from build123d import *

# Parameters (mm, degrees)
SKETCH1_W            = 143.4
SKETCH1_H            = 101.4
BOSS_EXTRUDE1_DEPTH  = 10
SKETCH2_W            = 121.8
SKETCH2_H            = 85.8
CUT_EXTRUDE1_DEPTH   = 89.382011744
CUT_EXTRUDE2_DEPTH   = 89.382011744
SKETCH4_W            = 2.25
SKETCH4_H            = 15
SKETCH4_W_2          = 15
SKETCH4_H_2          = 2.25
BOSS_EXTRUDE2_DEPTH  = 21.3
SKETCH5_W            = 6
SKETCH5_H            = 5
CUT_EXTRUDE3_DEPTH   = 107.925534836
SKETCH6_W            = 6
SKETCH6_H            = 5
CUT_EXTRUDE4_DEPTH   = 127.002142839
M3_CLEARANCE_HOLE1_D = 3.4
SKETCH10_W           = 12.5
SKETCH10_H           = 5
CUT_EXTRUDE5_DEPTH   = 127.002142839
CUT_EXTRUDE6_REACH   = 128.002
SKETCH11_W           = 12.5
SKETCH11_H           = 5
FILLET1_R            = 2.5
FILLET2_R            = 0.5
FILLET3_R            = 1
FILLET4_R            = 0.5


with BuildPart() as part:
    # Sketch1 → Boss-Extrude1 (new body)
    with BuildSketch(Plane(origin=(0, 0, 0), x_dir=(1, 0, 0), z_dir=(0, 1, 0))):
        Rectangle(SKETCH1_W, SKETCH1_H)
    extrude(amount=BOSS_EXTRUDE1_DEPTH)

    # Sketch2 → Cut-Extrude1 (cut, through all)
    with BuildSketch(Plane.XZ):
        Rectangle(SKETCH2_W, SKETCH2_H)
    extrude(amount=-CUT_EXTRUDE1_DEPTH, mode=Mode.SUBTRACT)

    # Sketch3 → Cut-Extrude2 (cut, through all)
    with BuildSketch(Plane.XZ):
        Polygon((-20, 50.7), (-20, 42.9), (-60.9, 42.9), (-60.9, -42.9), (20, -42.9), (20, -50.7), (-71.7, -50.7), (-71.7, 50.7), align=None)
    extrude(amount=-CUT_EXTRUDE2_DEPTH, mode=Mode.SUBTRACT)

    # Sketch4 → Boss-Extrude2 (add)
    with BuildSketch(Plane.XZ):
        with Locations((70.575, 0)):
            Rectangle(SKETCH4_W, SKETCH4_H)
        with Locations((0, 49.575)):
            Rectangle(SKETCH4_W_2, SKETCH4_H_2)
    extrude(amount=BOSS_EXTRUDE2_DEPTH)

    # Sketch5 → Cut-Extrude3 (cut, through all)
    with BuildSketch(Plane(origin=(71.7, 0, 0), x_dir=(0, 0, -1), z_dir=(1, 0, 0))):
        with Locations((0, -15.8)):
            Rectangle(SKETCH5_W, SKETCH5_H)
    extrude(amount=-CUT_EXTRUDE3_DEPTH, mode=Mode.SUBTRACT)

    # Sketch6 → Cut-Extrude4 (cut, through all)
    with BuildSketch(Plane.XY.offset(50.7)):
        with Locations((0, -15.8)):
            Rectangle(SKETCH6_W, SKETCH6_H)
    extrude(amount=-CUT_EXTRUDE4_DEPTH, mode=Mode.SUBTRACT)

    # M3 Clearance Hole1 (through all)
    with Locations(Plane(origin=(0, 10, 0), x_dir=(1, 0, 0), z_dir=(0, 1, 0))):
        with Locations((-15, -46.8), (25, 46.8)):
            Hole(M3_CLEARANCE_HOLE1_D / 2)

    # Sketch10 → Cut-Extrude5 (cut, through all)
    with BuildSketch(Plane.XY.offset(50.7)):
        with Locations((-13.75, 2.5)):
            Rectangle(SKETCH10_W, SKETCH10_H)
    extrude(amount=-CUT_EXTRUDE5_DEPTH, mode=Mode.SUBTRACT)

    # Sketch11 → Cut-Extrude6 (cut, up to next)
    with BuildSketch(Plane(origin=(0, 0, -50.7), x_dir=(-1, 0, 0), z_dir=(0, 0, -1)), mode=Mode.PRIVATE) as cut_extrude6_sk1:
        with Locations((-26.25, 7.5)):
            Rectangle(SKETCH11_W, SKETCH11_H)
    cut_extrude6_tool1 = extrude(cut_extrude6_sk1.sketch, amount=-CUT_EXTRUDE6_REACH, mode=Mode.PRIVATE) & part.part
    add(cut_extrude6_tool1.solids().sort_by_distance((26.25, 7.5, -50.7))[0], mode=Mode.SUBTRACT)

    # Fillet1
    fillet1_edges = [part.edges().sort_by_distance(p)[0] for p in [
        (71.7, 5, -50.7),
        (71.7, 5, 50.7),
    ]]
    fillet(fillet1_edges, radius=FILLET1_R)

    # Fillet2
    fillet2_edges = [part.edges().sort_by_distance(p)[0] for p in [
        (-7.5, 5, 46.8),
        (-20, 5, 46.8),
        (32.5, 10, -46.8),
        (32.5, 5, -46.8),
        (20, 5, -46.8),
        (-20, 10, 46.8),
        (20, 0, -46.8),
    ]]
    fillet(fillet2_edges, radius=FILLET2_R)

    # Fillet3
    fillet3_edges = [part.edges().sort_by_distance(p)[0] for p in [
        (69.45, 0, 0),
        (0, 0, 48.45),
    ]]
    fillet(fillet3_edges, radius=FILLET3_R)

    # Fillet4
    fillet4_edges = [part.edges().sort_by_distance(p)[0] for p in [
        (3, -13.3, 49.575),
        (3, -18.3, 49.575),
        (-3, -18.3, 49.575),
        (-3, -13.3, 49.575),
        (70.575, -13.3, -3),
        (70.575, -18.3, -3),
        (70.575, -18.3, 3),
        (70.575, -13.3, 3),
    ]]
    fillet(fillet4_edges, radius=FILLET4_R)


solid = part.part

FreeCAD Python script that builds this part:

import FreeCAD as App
import Part
import Sketcher
from FreeCAD import Vector
Q = App.Units.Quantity


def edges_at(feature, points):
    """Names of the edges that pass closest to the given points."""
    edges = feature.Shape.Edges
    near = lambda p: min(range(len(edges)), key=lambda i: edges[i].distToShape(Part.Vertex(*p))[0])
    return sorted({f"Edge{near(p) + 1}" for p in points})

doc = App.newDocument("Part")
body = doc.addObject("PartDesign::Body", "Body")

sketch1 = doc.addObject("Sketcher::SketchObject", "Sketch")
body.addObject(sketch1)
sketch1.AttachmentSupport = (doc.XZ_Plane, [""])
sketch1.MapMode = "FlatFace"
sketch1.addGeometry([
    Part.LineSegment(Vector(-72, -51, 0), Vector(-72, 51, 0)),
    Part.LineSegment(Vector(-72, 51, 0), Vector(72, 51, 0)),
    Part.LineSegment(Vector(72, 51, 0), Vector(72, -51, 0)),
    Part.LineSegment(Vector(72, -51, 0), Vector(-72, -51, 0)),
], False)
sketch1.addConstraint([
    Sketcher.Constraint("Coincident", 0, 2, 1, 1),
    Sketcher.Constraint("Coincident", 1, 2, 2, 1),
    Sketcher.Constraint("Coincident", 2, 2, 3, 1),
    Sketcher.Constraint("Coincident", 3, 2, 0, 1),
    Sketcher.Constraint("Vertical", 0),
    Sketcher.Constraint("Horizontal", 1),
    Sketcher.Constraint("Vertical", 2),
    Sketcher.Constraint("Horizontal", 3),
    Sketcher.Constraint("Symmetric", 0, 2, 2, 2, -1, 1),
    Sketcher.Constraint("DistanceX", 1, 1, 1, 2, Q("143.4 mm")),
    Sketcher.Constraint("DistanceY", 0, 1, 0, 2, Q("101.4 mm")),
])
pad1 = doc.addObject("PartDesign::Pad", "Pad")
body.addObject(pad1)
pad1.Profile = sketch1
pad1.Length = 10
pad1.Reversed = True

sketch2 = doc.addObject("Sketcher::SketchObject", "Sketch001")
body.addObject(sketch2)
sketch2.AttachmentSupport = (doc.XZ_Plane, [""])
sketch2.MapMode = "FlatFace"
sketch2.addGeometry([
    Part.LineSegment(Vector(-61, 43, 0), Vector(-61, -43, 0)),
    Part.LineSegment(Vector(-61, -43, 0), Vector(61, -43, 0)),
    Part.LineSegment(Vector(61, -43, 0), Vector(61, 43, 0)),
    Part.LineSegment(Vector(61, 43, 0), Vector(-61, 43, 0)),
], False)
sketch2.addConstraint([
    Sketcher.Constraint("Coincident", 0, 2, 1, 1),
    Sketcher.Constraint("Coincident", 1, 2, 2, 1),
    Sketcher.Constraint("Coincident", 2, 2, 3, 1),
    Sketcher.Constraint("Coincident", 3, 2, 0, 1),
    Sketcher.Constraint("Vertical", 0),
    Sketcher.Constraint("Horizontal", 1),
    Sketcher.Constraint("Vertical", 2),
    Sketcher.Constraint("Horizontal", 3),
    Sketcher.Constraint("Symmetric", 0, 2, 2, 2, -1, 1),
    Sketcher.Constraint("DistanceX", 1, 1, 1, 2, Q("121.8 mm")),
    Sketcher.Constraint("DistanceY", 0, 2, 0, 1, Q("85.8 mm")),
])
pocket1 = doc.addObject("PartDesign::Pocket", "Pocket")
body.addObject(pocket1)
pocket1.Profile = sketch2
pocket1.Type = "ThroughAll"

sketch3 = doc.addObject("Sketcher::SketchObject", "Sketch002")
body.addObject(sketch3)
sketch3.AttachmentSupport = (doc.XZ_Plane, [""])
sketch3.MapMode = "FlatFace"
sketch3.addGeometry([
    Part.LineSegment(Vector(-20, 43, 0), Vector(-20, 51, 0)),
    Part.LineSegment(Vector(-20, 51, 0), Vector(-72, 51, 0)),
    Part.LineSegment(Vector(-72, 51, 0), Vector(-72, -51, 0)),
    Part.LineSegment(Vector(-72, -51, 0), Vector(20, -51, 0)),
    Part.LineSegment(Vector(20, -51, 0), Vector(20, -43, 0)),
    Part.LineSegment(Vector(20, -43, 0), Vector(-61, -43, 0)),
    Part.LineSegment(Vector(-61, -43, 0), Vector(-61, 43, 0)),
    Part.LineSegment(Vector(-61, 43, 0), Vector(-20, 43, 0)),
], False)
sketch3.addConstraint([
    Sketcher.Constraint("Coincident", 0, 2, 1, 1),
    Sketcher.Constraint("Coincident", 1, 2, 2, 1),
    Sketcher.Constraint("Coincident", 2, 2, 3, 1),
    Sketcher.Constraint("Coincident", 3, 2, 4, 1),
    Sketcher.Constraint("Coincident", 4, 2, 5, 1),
    Sketcher.Constraint("Coincident", 5, 2, 6, 1),
    Sketcher.Constraint("Coincident", 6, 2, 7, 1),
    Sketcher.Constraint("Coincident", 7, 2, 0, 1),
    Sketcher.Constraint("Vertical", 0),
    Sketcher.Constraint("Horizontal", 1),
    Sketcher.Constraint("Vertical", 2),
    Sketcher.Constraint("Horizontal", 3),
    Sketcher.Constraint("Vertical", 4),
    Sketcher.Constraint("Horizontal", 5),
    Sketcher.Constraint("Vertical", 6),
    Sketcher.Constraint("Horizontal", 7),
    Sketcher.Constraint("Symmetric", 0, 2, 3, 2, -1, 1),
    Sketcher.Constraint("Equal", 0, 4),
    Sketcher.Constraint("DistanceX", 1, 2, 1, 1, Q("51.7 mm")),
    Sketcher.Constraint("DistanceX", 3, 1, 3, 2, Q("91.7 mm")),
    Sketcher.Constraint("DistanceX", 5, 2, 5, 1, Q("80.9 mm")),
    Sketcher.Constraint("DistanceY", 0, 1, 0, 2, Q("7.8 mm")),
    Sketcher.Constraint("DistanceY", 2, 2, 2, 1, Q("101.4 mm")),
])
pocket2 = doc.addObject("PartDesign::Pocket", "Pocket001")
body.addObject(pocket2)
pocket2.Profile = sketch3
pocket2.Type = "ThroughAll"

sketch4 = doc.addObject("Sketcher::SketchObject", "Sketch003")
body.addObject(sketch4)
sketch4.AttachmentSupport = (doc.XZ_Plane, [""])
sketch4.MapMode = "FlatFace"
sketch4.addGeometry([
    Part.LineSegment(Vector(69.5, 7.5, 0), Vector(69.5, -7.5, 0)),
    Part.LineSegment(Vector(69.5, -7.5, 0), Vector(71.7, -7.5, 0)),
    Part.LineSegment(Vector(71.7, -7.5, 0), Vector(71.7, 7.5, 0)),
    Part.LineSegment(Vector(71.7, 7.5, 0), Vector(69.5, 7.5, 0)),
    Part.LineSegment(Vector(-7.5, 50.7, 0), Vector(-7.5, 48.5, 0)),
    Part.LineSegment(Vector(-7.5, 48.5, 0), Vector(7.5, 48.5, 0)),
    Part.LineSegment(Vector(7.5, 48.5, 0), Vector(7.5, 50.7, 0)),
    Part.LineSegment(Vector(7.5, 50.7, 0), Vector(-7.5, 50.7, 0)),
], False)
sketch4.addConstraint([
    Sketcher.Constraint("Coincident", 0, 2, 1, 1),
    Sketcher.Constraint("Coincident", 1, 2, 2, 1),
    Sketcher.Constraint("Coincident", 2, 2, 3, 1),
    Sketcher.Constraint("Coincident", 3, 2, 0, 1),
    Sketcher.Constraint("Coincident", 4, 2, 5, 1),
    Sketcher.Constraint("Coincident", 5, 2, 6, 1),
    Sketcher.Constraint("Coincident", 6, 2, 7, 1),
    Sketcher.Constraint("Coincident", 7, 2, 4, 1),
    Sketcher.Constraint("Vertical", 0),
    Sketcher.Constraint("Horizontal", 1),
    Sketcher.Constraint("Vertical", 2),
    Sketcher.Constraint("Horizontal", 3),
    Sketcher.Constraint("Vertical", 4),
    Sketcher.Constraint("Horizontal", 5),
    Sketcher.Constraint("Vertical", 6),
    Sketcher.Constraint("Horizontal", 7),
    Sketcher.Constraint("Equal", 7, 0),
    Sketcher.Constraint("Equal", 3, 4),
    Sketcher.Constraint("DistanceX", 5, 1, 5, 2, Q("15 mm")),
    Sketcher.Constraint("DistanceX", 1, 1, 1, 2, Q("2.25 mm")),
    Sketcher.Constraint("DistanceY", 0, 2, -1, 1, Q("7.5 mm")),
    Sketcher.Constraint("DistanceX", -1, 1, 1, 2, Q("71.7 mm")),
    Sketcher.Constraint("DistanceX", 4, 2, -1, 1, Q("7.5 mm")),
    Sketcher.Constraint("DistanceY", -1, 1, 6, 2, Q("50.7 mm")),
])
pad2 = doc.addObject("PartDesign::Pad", "Pad001")
body.addObject(pad2)
pad2.Profile = sketch4
pad2.Length = 21.3

sketch5 = doc.addObject("Sketcher::SketchObject", "Sketch004")
body.addObject(sketch5)
sketch5.AttachmentSupport = (doc.YZ_Plane, [""])
sketch5.MapMode = "FlatFace"
sketch5.AttachmentOffset = App.Placement(Vector(0, 0, 71.7), App.Rotation())
sketch5.addGeometry([
    Part.LineSegment(Vector(-13, 3, 0), Vector(-18, 3, 0)),
    Part.LineSegment(Vector(-18, 3, 0), Vector(-18, -3, 0)),
    Part.LineSegment(Vector(-18, -3, 0), Vector(-13, -3, 0)),
    Part.LineSegment(Vector(-13, -3, 0), Vector(-13, 3, 0)),
], False)
sketch5.addConstraint([
    Sketcher.Constraint("Coincident", 0, 2, 1, 1),
    Sketcher.Constraint("Coincident", 1, 2, 2, 1),
    Sketcher.Constraint("Coincident", 2, 2, 3, 1),
    Sketcher.Constraint("Coincident", 3, 2, 0, 1),
    Sketcher.Constraint("Horizontal", 0),
    Sketcher.Constraint("Vertical", 1),
    Sketcher.Constraint("Horizontal", 2),
    Sketcher.Constraint("Vertical", 3),
    Sketcher.Constraint("DistanceX", 0, 2, 0, 1, Q("5 mm")),
    Sketcher.Constraint("DistanceY", 1, 2, 1, 1, Q("6 mm")),
    Sketcher.Constraint("DistanceY", -1, 1, 0, 2, Q("3 mm")),
    Sketcher.Constraint("DistanceX", 0, 2, -1, 1, Q("18.3 mm")),
])
pocket3 = doc.addObject("PartDesign::Pocket", "Pocket002")
body.addObject(pocket3)
pocket3.Profile = sketch5
pocket3.Type = "ThroughAll"

sketch6 = doc.addObject("Sketcher::SketchObject", "Sketch005")
body.addObject(sketch6)
sketch6.AttachmentSupport = (doc.XY_Plane, [""])
sketch6.MapMode = "FlatFace"
sketch6.AttachmentOffset = App.Placement(Vector(0, 0, 50.7), App.Rotation())
sketch6.addGeometry([
    Part.LineSegment(Vector(-3, -13, 0), Vector(-3, -18, 0)),
    Part.LineSegment(Vector(-3, -18, 0), Vector(3, -18, 0)),
    Part.LineSegment(Vector(3, -18, 0), Vector(3, -13, 0)),
    Part.LineSegment(Vector(3, -13, 0), Vector(-3, -13, 0)),
], False)
sketch6.addConstraint([
    Sketcher.Constraint("Coincident", 0, 2, 1, 1),
    Sketcher.Constraint("Coincident", 1, 2, 2, 1),
    Sketcher.Constraint("Coincident", 2, 2, 3, 1),
    Sketcher.Constraint("Coincident", 3, 2, 0, 1),
    Sketcher.Constraint("Vertical", 0),
    Sketcher.Constraint("Horizontal", 1),
    Sketcher.Constraint("Vertical", 2),
    Sketcher.Constraint("Horizontal", 3),
    Sketcher.Constraint("DistanceX", 1, 1, 1, 2, Q("6 mm")),
    Sketcher.Constraint("DistanceY", 0, 2, 0, 1, Q("5 mm")),
    Sketcher.Constraint("DistanceX", 0, 2, -1, 1, Q("3 mm")),
    Sketcher.Constraint("DistanceY", 0, 2, -1, 1, Q("18.3 mm")),
])
pocket4 = doc.addObject("PartDesign::Pocket", "Pocket003")
body.addObject(pocket4)
pocket4.Profile = sketch6
pocket4.Type = "ThroughAll"

sketch7 = doc.addObject("Sketcher::SketchObject", "Sketch006")
body.addObject(sketch7)
sketch7.AttachmentSupport = (doc.XZ_Plane, [""])
sketch7.MapMode = "FlatFace"
sketch7.AttachmentOffset = App.Placement(Vector(0, 0, -10), App.Rotation())
sketch7.addGeometry([
    Part.Circle(Vector(-15, 46.8, 0), Vector(0, 0, 1), 1.7),
    Part.Circle(Vector(25, -46.8, 0), Vector(0, 0, 1), 1.7),
], False)
sketch7.addConstraint([
    Sketcher.Constraint("Equal", 0, 1),
    Sketcher.Constraint("Diameter", 0, Q("3.4 mm")),
    Sketcher.Constraint("DistanceX", 0, 3, -1, 1, Q("15 mm")),
    Sketcher.Constraint("DistanceX", -1, 1, 1, 3, Q("25 mm")),
    Sketcher.Constraint("DistanceY", -1, 1, 0, 3, Q("46.8 mm")),
    Sketcher.Constraint("DistanceY", 1, 3, -1, 1, Q("46.8 mm")),
])
doc.recompute()
hole = doc.addObject("PartDesign::Hole", "Hole")
body.addObject(hole)
hole.Profile = sketch7
hole.ThreadType = "None"
hole.Diameter = 3.4
hole.DepthType = "ThroughAll"
hole.Reversed = True

sketch8 = doc.addObject("Sketcher::SketchObject", "Sketch007")
body.addObject(sketch8)
sketch8.AttachmentSupport = (doc.XY_Plane, [""])
sketch8.MapMode = "FlatFace"
sketch8.AttachmentOffset = App.Placement(Vector(0, 0, 50.7), App.Rotation())
sketch8.addGeometry([
    Part.LineSegment(Vector(-20, 5, 0), Vector(-20, 0, 0)),
    Part.LineSegment(Vector(-20, 0, 0), Vector(-8, 0, 0)),
    Part.LineSegment(Vector(-8, 0, 0), Vector(-8, 5, 0)),
    Part.LineSegment(Vector(-8, 5, 0), Vector(-20, 5, 0)),
], False)
sketch8.addConstraint([
    Sketcher.Constraint("Coincident", 0, 2, 1, 1),
    Sketcher.Constraint("Coincident", 1, 2, 2, 1),
    Sketcher.Constraint("Coincident", 2, 2, 3, 1),
    Sketcher.Constraint("Coincident", 3, 2, 0, 1),
    Sketcher.Constraint("Vertical", 0),
    Sketcher.Constraint("Horizontal", 1),
    Sketcher.Constraint("Vertical", 2),
    Sketcher.Constraint("Horizontal", 3),
    Sketcher.Constraint("PointOnObject", 0, 2, -1),
    Sketcher.Constraint("DistanceY", 0, 2, 0, 1, Q("5 mm")),
    Sketcher.Constraint("DistanceX", 1, 1, 1, 2, Q("12.5 mm")),
    Sketcher.Constraint("DistanceX", 0, 2, -1, 1, Q("20 mm")),
])
pocket5 = doc.addObject("PartDesign::Pocket", "Pocket004")
body.addObject(pocket5)
pocket5.Profile = sketch8
pocket5.Type = "ThroughAll"

sketch9 = doc.addObject("Sketcher::SketchObject", "Sketch008")
body.addObject(sketch9)
sketch9.AttachmentSupport = (doc.XY_Plane, [""])
sketch9.MapMode = "FlatFace"
sketch9.AttachmentOffset = App.Placement(Vector(0, 0, -50.7), App.Rotation())
sketch9.addGeometry([
    Part.LineSegment(Vector(32, 10, 0), Vector(32, 5, 0)),
    Part.LineSegment(Vector(32, 5, 0), Vector(20, 5, 0)),
    Part.LineSegment(Vector(20, 5, 0), Vector(20, 10, 0)),
    Part.LineSegment(Vector(20, 10, 0), Vector(32, 10, 0)),
], False)
sketch9.addConstraint([
    Sketcher.Constraint("Coincident", 0, 2, 1, 1),
    Sketcher.Constraint("Coincident", 1, 2, 2, 1),
    Sketcher.Constraint("Coincident", 2, 2, 3, 1),
    Sketcher.Constraint("Coincident", 3, 2, 0, 1),
    Sketcher.Constraint("Vertical", 0),
    Sketcher.Constraint("Horizontal", 1),
    Sketcher.Constraint("Vertical", 2),
    Sketcher.Constraint("Horizontal", 3),
    Sketcher.Constraint("DistanceY", 0, 2, 0, 1, Q("5 mm")),
    Sketcher.Constraint("DistanceX", 1, 2, 1, 1, Q("12.5 mm")),
    Sketcher.Constraint("DistanceY", -1, 1, 0, 2, Q("5 mm")),
    Sketcher.Constraint("DistanceX", -1, 1, 1, 2, Q("20 mm")),
])
pocket6 = doc.addObject("PartDesign::Pocket", "Pocket005")
body.addObject(pocket6)
pocket6.Profile = sketch9
pocket6.Length = 7.8
pocket6.Reversed = True
doc.recompute()

fillet = doc.addObject("PartDesign::Fillet", "Fillet")
body.addObject(fillet)
fillet.Base = (pocket6, edges_at(pocket6, [(71.7, 5, -50.7), (71.7, 5, 50.7)]))
fillet.Radius = 2.5
doc.recompute()

fillet2 = doc.addObject("PartDesign::Fillet", "Fillet001")
body.addObject(fillet2)
fillet2.Base = (fillet, edges_at(fillet, [
    (-7.5, 5, 46.8),
    (-20, 5, 46.8),
    (32.5, 10, -46.8),
    (32.5, 5, -46.8),
    (20, 5, -46.8),
    (-20, 10, 46.8),
    (20, 0, -46.8),
]))
fillet2.Radius = 0.5
doc.recompute()

fillet3 = doc.addObject("PartDesign::Fillet", "Fillet002")
body.addObject(fillet3)
fillet3.Base = (fillet2, edges_at(fillet2, [(69.45, 0, 0), (0, 0, 48.45)]))
fillet3.Radius = 1
doc.recompute()

fillet4 = doc.addObject("PartDesign::Fillet", "Fillet003")
body.addObject(fillet4)
fillet4.Base = (fillet3, edges_at(fillet3, [
    (3, -13.3, 49.575),
    (3, -18.3, 49.575),
    (-3, -18.3, 49.575),
    (-3, -13.3, 49.575),
    (70.575, -13.3, -3),
    (70.575, -18.3, -3),
    (70.575, -18.3, 3),
    (70.575, -13.3, 3),
]))
fillet4.Radius = 0.5

doc.recompute()
